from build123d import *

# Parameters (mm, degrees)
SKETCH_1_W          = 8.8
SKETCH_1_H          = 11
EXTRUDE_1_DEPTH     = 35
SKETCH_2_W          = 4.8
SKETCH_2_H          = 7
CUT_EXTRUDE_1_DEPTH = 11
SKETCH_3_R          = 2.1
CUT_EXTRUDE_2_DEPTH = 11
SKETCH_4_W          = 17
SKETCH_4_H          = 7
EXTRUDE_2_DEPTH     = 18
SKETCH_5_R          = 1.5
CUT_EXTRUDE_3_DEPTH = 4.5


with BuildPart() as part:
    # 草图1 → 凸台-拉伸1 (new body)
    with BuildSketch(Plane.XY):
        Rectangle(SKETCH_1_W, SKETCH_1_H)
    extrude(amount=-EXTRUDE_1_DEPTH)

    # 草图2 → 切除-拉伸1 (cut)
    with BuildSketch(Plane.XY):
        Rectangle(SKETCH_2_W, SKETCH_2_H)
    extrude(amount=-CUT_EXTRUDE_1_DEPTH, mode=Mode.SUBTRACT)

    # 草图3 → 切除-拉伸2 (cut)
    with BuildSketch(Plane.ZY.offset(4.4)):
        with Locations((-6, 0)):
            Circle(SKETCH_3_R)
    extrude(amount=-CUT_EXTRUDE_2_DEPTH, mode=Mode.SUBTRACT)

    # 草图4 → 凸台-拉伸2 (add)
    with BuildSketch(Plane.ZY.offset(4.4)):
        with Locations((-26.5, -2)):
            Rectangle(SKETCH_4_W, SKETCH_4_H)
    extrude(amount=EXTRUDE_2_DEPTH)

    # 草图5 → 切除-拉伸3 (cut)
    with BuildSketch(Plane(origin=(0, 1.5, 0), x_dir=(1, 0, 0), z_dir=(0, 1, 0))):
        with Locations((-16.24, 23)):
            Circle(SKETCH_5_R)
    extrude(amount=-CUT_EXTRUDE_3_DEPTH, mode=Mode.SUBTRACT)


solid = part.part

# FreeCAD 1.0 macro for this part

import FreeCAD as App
import Part
import Sketcher

V = App.Vector

doc = App.newDocument("Part")
body = doc.addObject("PartDesign::Body", "Body")

# Sketch on XY plane
sketch1 = doc.addObject("Sketcher::SketchObject", "Sketch")
body.addObject(sketch1)
sketch1.AttachmentSupport = (doc.XY_Plane, [""])
sketch1.MapMode = "FlatFace"
sketch1.addGeometry([
    Part.LineSegment(V(-4, 6, 0), V(-4, -6, 0)),
    Part.LineSegment(V(-4, -6, 0), V(4, -6, 0)),
    Part.LineSegment(V(4, -6, 0), V(4, 6, 0)),
    Part.LineSegment(V(4, 6, 0), V(-4, 6, 0)),
], False)
sketch1.addConstraint([
    Sketcher.Constraint("Coincident", 0, 2, 1, 1),
    Sketcher.Constraint("Coincident", 1, 2, 2, 1),
    Sketcher.Constraint("Coincident", 2, 2, 3, 1),
    Sketcher.Constraint("Coincident", 3, 2, 0, 1),
    Sketcher.Constraint("Vertical", 0),
    Sketcher.Constraint("Horizontal", 1),
    Sketcher.Constraint("Vertical", 2),
    Sketcher.Constraint("Horizontal", 3),
    Sketcher.Constraint("Symmetric", 0, 2, 2, 2, -1, 1),
    Sketcher.Constraint("DistanceY", 0, 2, 0, 1, 11.0),
    Sketcher.Constraint("DistanceX", 1, 1, 1, 2, 8.8),
])
pad1 = doc.addObject("PartDesign::Pad", "Pad")
body.addObject(pad1)
pad1.Profile = sketch1
pad1.Length = 35
pad1.Reversed = True

# Sketch on XY plane
sketch2 = doc.addObject("Sketcher::SketchObject", "Sketch001")
body.addObject(sketch2)
sketch2.AttachmentSupport = (doc.XY_Plane, [""])
sketch2.MapMode = "FlatFace"
sketch2.addGeometry([
    Part.LineSegment(V(-2.4, 3.5, 0), V(-2.4, -3.5, 0)),
    Part.LineSegment(V(-2.4, -3.5, 0), V(2.4, -3.5, 0)),
    Part.LineSegment(V(2.4, -3.5, 0), V(2.4, 3.5, 0)),
    Part.LineSegment(V(2.4, 3.5, 0), V(-2.4, 3.5, 0)),
], False)
sketch2.addConstraint([
    Sketcher.Constraint("Coincident", 0, 2, 1, 1),
    Sketcher.Constraint("Coincident", 1, 2, 2, 1),
    Sketcher.Constraint("Coincident", 2, 2, 3, 1),
    Sketcher.Constraint("Coincident", 3, 2, 0, 1),
    Sketcher.Constraint("Vertical", 0),
    Sketcher.Constraint("Horizontal", 1),
    Sketcher.Constraint("Vertical", 2),
    Sketcher.Constraint("Horizontal", 3),
    Sketcher.Constraint("Symmetric", 0, 2, 2, 2, -1, 1),
    Sketcher.Constraint("DistanceY", 0, 2, 0, 1, 7.0),
    Sketcher.Constraint("DistanceX", 1, 1, 1, 2, 4.8),
])
pocket1 = doc.addObject("PartDesign::Pocket", "Pocket")
body.addObject(pocket1)
pocket1.Profile = sketch2
pocket1.Length = 11

# Sketch on YZ plane
sketch3 = doc.addObject("Sketcher::SketchObject", "Sketch002")
body.addObject(sketch3)
sketch3.AttachmentSupport = (doc.YZ_Plane, [""])
sketch3.MapMode = "FlatFace"
sketch3.AttachmentOffset = App.Placement(V(0, 0, -4.4), App.Rotation())
sketch3.addGeometry(Part.Circle(V(0, -6, 0), V(0, 0, 1), 2.1), False)
sketch3.addConstraint([
    Sketcher.Constraint("PointOnObject", 0, 3, -2),
    Sketcher.Constraint("Diameter", 0, 4.2),
    Sketcher.Constraint("DistanceY", 0, 3, -1, 1, 6.0),
])
pocket2 = doc.addObject("PartDesign::Pocket", "Pocket001")
body.addObject(pocket2)
pocket2.Profile = sketch3
pocket2.Length = 11
pocket2.Reversed = True

# Sketch on YZ plane
sketch4 = doc.addObject("Sketcher::SketchObject", "Sketch003")
body.addObject(sketch4)
sketch4.AttachmentSupport = (doc.YZ_Plane, [""])
sketch4.MapMode = "FlatFace"
sketch4.AttachmentOffset = App.Placement(V(0, 0, -4.4), App.Rotation())
sketch4.addGeometry([
    Part.LineSegment(V(2, -35, 0), V(-6, -35, 0)),
    Part.LineSegment(V(-6, -35, 0), V(-6, -18, 0)),
    Part.LineSegment(V(-6, -18, 0), V(2, -18, 0)),
    Part.LineSegment(V(2, -18, 0), V(2, -35, 0)),
], False)
sketch4.addConstraint([
    Sketcher.Constraint("Coincident", 0, 2, 1, 1),
    Sketcher.Constraint("Coincident", 1, 2, 2, 1),
    Sketcher.Constraint("Coincident", 2, 2, 3, 1),
    Sketcher.Constraint("Coincident", 3, 2, 0, 1),
    Sketcher.Constraint("Horizontal", 0),
    Sketcher.Constraint("Vertical", 1),
    Sketcher.Constraint("Horizontal", 2),
    Sketcher.Constraint("Vertical", 3),
    Sketcher.Constraint("DistanceX", 0, 2, 0, 1, 7.0),
    Sketcher.Constraint("DistanceY", 1, 1, 1, 2, 17.0),
    Sketcher.Constraint("DistanceY", 0, 2, -1, 1, 35.0),
    Sketcher.Constraint("DistanceX", 0, 2, -1, 1, 5.5),
])
pad2 = doc.addObject("PartDesign::Pad", "Pad001")
body.addObject(pad2)
pad2.Profile = sketch4
pad2.Length = 18
pad2.Reversed = True

# Sketch on XZ plane
sketch5 = doc.addObject("Sketcher::SketchObject", "Sketch004")
body.addObject(sketch5)
sketch5.AttachmentSupport = (doc.XZ_Plane, [""])
sketch5.MapMode = "FlatFace"
sketch5.AttachmentOffset = App.Placement(V(0, 0, -1.5), App.Rotation())
sketch5.addGeometry(Part.Circle(V(-16.2, -23, 0), V(0, 0, 1), 1.5), False)
sketch5.addConstraint([
    Sketcher.Constraint("Diameter", 0, 3.0),
    Sketcher.Constraint("DistanceY", 0, 3, -1, 1, 23.0),
    Sketcher.Constraint("DistanceX", 0, 3, -1, 1, 16.24),
])
pocket3 = doc.addObject("PartDesign::Pocket", "Pocket002")
body.addObject(pocket3)
pocket3.Profile = sketch5
pocket3.Length = 4.5
pocket3.Reversed = True

doc.recompute()
